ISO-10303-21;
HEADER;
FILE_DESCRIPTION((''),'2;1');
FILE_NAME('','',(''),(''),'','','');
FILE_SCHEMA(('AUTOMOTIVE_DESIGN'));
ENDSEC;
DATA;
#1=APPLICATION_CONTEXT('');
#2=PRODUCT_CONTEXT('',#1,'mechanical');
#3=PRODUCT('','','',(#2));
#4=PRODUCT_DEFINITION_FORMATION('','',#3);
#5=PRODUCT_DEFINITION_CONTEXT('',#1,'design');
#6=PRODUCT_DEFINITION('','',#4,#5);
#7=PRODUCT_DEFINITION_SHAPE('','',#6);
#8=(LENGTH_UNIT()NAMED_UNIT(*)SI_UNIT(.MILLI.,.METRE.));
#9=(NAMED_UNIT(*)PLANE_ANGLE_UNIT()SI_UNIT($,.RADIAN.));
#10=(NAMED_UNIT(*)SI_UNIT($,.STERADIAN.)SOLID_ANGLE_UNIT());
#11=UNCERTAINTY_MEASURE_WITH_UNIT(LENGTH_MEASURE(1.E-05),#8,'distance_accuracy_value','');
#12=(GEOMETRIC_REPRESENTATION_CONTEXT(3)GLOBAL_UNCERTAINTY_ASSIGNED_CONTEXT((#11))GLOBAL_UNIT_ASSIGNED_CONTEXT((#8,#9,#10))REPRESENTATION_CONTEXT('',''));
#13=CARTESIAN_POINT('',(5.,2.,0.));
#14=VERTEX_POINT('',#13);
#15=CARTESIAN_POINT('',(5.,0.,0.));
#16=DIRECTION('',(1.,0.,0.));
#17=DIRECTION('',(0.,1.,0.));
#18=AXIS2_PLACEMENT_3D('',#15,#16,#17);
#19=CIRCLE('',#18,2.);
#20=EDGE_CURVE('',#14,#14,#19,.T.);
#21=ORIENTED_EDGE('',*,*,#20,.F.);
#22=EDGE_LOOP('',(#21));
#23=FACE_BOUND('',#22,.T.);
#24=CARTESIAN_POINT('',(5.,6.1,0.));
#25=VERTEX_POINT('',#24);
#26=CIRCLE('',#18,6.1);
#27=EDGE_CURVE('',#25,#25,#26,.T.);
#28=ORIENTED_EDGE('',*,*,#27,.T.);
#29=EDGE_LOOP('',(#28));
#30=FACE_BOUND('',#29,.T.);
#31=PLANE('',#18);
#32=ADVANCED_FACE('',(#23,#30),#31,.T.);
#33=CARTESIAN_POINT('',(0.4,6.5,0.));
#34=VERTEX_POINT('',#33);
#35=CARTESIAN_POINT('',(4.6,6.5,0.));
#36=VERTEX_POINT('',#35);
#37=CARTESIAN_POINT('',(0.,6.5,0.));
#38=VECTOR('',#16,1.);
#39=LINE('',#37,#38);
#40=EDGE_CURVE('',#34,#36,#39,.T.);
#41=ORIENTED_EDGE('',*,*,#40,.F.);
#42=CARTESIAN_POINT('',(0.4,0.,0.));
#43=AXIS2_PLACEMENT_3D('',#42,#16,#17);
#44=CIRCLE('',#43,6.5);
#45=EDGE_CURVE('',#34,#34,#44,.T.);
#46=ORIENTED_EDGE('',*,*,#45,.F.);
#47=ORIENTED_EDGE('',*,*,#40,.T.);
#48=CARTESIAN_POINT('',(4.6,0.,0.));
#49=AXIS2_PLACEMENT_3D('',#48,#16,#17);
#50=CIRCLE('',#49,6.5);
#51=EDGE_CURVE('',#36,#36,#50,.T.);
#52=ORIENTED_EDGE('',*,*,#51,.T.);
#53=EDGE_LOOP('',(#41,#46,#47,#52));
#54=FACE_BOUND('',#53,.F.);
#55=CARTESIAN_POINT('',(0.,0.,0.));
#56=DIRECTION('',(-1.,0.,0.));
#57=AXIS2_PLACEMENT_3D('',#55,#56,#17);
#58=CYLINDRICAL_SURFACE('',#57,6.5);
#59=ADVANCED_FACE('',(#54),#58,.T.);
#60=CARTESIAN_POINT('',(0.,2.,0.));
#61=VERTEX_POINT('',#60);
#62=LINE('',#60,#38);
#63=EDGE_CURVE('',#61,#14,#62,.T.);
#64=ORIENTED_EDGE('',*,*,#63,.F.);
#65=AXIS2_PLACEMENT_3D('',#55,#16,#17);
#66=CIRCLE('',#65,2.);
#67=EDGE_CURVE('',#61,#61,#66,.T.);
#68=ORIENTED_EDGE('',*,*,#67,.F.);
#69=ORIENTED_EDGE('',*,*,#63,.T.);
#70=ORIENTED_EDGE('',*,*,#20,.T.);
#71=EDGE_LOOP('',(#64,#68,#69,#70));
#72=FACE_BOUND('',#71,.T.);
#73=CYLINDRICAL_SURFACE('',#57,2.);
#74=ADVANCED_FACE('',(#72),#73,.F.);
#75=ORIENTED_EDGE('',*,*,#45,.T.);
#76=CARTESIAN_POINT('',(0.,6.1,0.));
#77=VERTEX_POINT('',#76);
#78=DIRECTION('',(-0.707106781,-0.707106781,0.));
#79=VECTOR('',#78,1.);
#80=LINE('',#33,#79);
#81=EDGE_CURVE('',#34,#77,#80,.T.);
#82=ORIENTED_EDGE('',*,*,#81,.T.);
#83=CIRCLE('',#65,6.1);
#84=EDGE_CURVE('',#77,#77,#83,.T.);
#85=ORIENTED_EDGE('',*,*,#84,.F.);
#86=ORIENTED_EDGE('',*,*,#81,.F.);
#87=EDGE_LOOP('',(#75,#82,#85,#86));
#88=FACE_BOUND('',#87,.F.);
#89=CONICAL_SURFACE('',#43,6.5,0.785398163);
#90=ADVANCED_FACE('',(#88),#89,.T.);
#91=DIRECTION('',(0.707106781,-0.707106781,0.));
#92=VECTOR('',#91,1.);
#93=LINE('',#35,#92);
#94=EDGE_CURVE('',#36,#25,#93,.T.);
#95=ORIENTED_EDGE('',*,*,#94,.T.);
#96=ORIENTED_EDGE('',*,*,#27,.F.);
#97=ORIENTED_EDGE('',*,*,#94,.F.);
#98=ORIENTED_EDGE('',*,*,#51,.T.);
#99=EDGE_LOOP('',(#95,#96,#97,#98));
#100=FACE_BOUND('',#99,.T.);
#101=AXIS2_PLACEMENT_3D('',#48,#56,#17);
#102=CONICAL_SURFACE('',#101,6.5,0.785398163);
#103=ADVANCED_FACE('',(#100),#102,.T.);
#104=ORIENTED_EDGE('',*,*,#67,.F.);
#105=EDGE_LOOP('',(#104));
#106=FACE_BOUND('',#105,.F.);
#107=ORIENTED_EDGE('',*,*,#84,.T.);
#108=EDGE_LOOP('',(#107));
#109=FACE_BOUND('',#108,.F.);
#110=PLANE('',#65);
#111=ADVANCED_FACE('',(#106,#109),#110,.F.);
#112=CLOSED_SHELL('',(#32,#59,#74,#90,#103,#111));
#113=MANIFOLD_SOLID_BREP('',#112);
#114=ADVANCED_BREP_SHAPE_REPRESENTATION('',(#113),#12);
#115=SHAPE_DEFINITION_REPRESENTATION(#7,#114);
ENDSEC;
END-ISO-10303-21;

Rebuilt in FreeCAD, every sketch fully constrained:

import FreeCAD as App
import Part
import Sketcher

V = App.Vector
Q = App.Units.Quantity


def edges_at(feature, points):
    """Names of the edges that pass closest to the given points."""
    edges = feature.Shape.Edges
    near = lambda p: min(range(len(edges)), key=lambda i: edges[i].distToShape(Part.Vertex(*p))[0])
    return sorted({f"Edge{near(p) + 1}" for p in points})

doc = App.newDocument("Part")
params = doc.addObject("Spreadsheet::Sheet", "Params")
for row, (alias, value) in enumerate([
    ("sketch1_diameter", "13 mm"),
    ("sketch1_diameter2", "4 mm"),
    ("pad1_length", "5 mm"),
    ("chamfer_size", "0.4 mm"),
], start=1):
    params.set(f"A{row}", alias)
    params.set(f"B{row}", "=" + value)
    params.setAlias(f"B{row}", alias)

body = doc.addObject("PartDesign::Body", "Body")

# Sketch on YZ plane
sketch1 = body.newObject("Sketcher::SketchObject", "Sketch")
sketch1.AttachmentSupport = (doc.getObject("YZ_Plane"), [""])
sketch1.MapMode = "FlatFace"
sketch1.addGeometry([
    Part.Circle(V(0, 0, 0), V(0, 0, 1), 6.5),
    Part.Circle(V(0, 0, 0), V(0, 0, 1), 2),
], False)
sketch1.addConstraint([
    Sketcher.Constraint("Coincident", 0, 3, -1, 1),
    Sketcher.Constraint("Coincident", 1, 3, -1, 1),
    Sketcher.Constraint("Diameter", 0, Q("13 mm")),
    Sketcher.Constraint("Diameter", 1, Q("4 mm")),
])
sketch1.setExpression("Constraints[2]", "Params.sketch1_diameter")
sketch1.setExpression("Constraints[3]", "Params.sketch1_diameter2")
pad1 = body.newObject("PartDesign::Pad", "Pad")
pad1.Profile = sketch1
pad1.setExpression("Length", "Params.pad1_length")
doc.recompute()

chamfer = body.newObject("PartDesign::Chamfer", "Chamfer")
chamfer.Base = (pad1, edges_at(pad1, [(2.5, 6.5, 0), (0, -6.5, 0), (5, -6.5, 0)]))
chamfer.setExpression("Size", "Params.chamfer_size")

doc.recompute()
